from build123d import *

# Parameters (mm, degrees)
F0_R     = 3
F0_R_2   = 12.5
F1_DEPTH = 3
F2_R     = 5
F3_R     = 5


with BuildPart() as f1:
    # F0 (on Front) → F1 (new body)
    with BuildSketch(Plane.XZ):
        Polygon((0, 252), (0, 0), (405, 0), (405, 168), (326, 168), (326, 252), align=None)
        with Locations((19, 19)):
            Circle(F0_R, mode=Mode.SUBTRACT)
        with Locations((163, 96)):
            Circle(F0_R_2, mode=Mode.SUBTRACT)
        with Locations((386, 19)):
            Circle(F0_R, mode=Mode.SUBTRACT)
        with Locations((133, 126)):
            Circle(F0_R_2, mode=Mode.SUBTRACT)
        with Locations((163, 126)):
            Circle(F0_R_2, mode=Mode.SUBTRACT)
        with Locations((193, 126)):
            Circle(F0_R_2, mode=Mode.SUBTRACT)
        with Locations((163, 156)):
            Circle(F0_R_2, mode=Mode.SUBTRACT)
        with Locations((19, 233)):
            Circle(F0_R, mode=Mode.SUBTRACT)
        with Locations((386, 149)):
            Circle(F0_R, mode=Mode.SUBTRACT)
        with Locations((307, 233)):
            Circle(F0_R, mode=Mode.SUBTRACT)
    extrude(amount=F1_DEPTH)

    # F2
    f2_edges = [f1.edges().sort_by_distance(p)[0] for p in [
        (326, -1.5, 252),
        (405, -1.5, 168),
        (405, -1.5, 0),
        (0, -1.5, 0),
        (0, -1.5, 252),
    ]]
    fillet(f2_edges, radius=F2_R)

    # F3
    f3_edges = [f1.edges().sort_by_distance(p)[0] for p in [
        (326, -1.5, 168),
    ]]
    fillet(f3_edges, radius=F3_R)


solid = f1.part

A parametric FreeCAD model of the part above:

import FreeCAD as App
import Part
import Sketcher

V = App.Vector
Q = App.Units.Quantity


def edges_at(feature, points):
    """Names of the edges that pass closest to the given points."""
    edges = feature.Shape.Edges
    near = lambda p: min(range(len(edges)), key=lambda i: edges[i].distToShape(Part.Vertex(*p))[0])
    return sorted({f"Edge{near(p) + 1}" for p in points})


def add_polygon(sketch, points):
    """Adds a closed chain of lines whose ends are joined by coincident constraints."""
    first, n = sketch.GeometryCount, len(points)
    for a, b in zip(points, points[1:] + points[:1]):
        sketch.addGeometry(Part.LineSegment(App.Vector(*a, 0), App.Vector(*b, 0)), False)
    for i in range(n):
        sketch.addConstraint(Sketcher.Constraint("Coincident", first + i, 2, first + (i + 1) % n, 1))

doc = App.newDocument("Part")
body = doc.addObject("PartDesign::Body", "Body")

# Sketch on XZ plane
sketch1 = body.newObject("Sketcher::SketchObject", "Sketch")
sketch1.AttachmentSupport = (doc.getObject("XZ_Plane"), [""])
sketch1.MapMode = "FlatFace"
add_polygon(sketch1, [(0, 252), (0, 0), (405, 0), (405, 168), (326, 168), (326, 252)])  # lines 0-5
sketch1.addGeometry(Part.Circle(V(19, 19, 0), V(0, 0, 1), 3), False)  # 6
sketch1.addGeometry(Part.Circle(V(163, 96, 0), V(0, 0, 1), 12.5), False)  # 7
sketch1.addGeometry(Part.Circle(V(386, 19, 0), V(0, 0, 1), 3), False)  # 8
sketch1.addGeometry(Part.Circle(V(133, 126, 0), V(0, 0, 1), 12.5), False)  # 9
sketch1.addGeometry(Part.Circle(V(163, 126, 0), V(0, 0, 1), 12.5), False)  # 10
sketch1.addGeometry(Part.Circle(V(193, 126, 0), V(0, 0, 1), 12.5), False)  # 11
sketch1.addGeometry(Part.Circle(V(163, 156, 0), V(0, 0, 1), 12.5), False)  # 12
sketch1.addGeometry(Part.Circle(V(19, 233, 0), V(0, 0, 1), 3), False)  # 13
sketch1.addGeometry(Part.Circle(V(386, 149, 0), V(0, 0, 1), 3), False)  # 14
sketch1.addGeometry(Part.Circle(V(307, 233, 0), V(0, 0, 1), 3), False)  # 15
sketch1.addConstraint(Sketcher.Constraint("Vertical", 0))
sketch1.addConstraint(Sketcher.Constraint("Horizontal", 1))
sketch1.addConstraint(Sketcher.Constraint("Vertical", 2))
sketch1.addConstraint(Sketcher.Constraint("Horizontal", 3))
sketch1.addConstraint(Sketcher.Constraint("Vertical", 4))
sketch1.addConstraint(Sketcher.Constraint("Horizontal", 5))
sketch1.addConstraint(Sketcher.Constraint("Coincident", 0, 2, -1, 1))
sketch1.addConstraint(Sketcher.Constraint("Equal", 6, 8))
sketch1.addConstraint(Sketcher.Constraint("Equal", 7, 9))
sketch1.addConstraint(Sketcher.Constraint("Equal", 9, 10))
sketch1.addConstraint(Sketcher.Constraint("Equal", 10, 11))
sketch1.addConstraint(Sketcher.Constraint("Equal", 11, 12))
sketch1.addConstraint(Sketcher.Constraint("Equal", 8, 13))
sketch1.addConstraint(Sketcher.Constraint("Equal", 13, 14))
sketch1.addConstraint(Sketcher.Constraint("Equal", 14, 15))
sketch1.addConstraint(Sketcher.Constraint("Horizontal", 6, 3, 8, 3))
sketch1.addConstraint(Sketcher.Constraint("Horizontal", 9, 3, 10, 3))
sketch1.addConstraint(Sketcher.Constraint("Horizontal", 10, 3, 11, 3))
sketch1.addConstraint(Sketcher.Constraint("Horizontal", 13, 3, 15, 3))
sketch1.addConstraint(Sketcher.Constraint("Vertical", 7, 3, 10, 3))
sketch1.addConstraint(Sketcher.Constraint("Vertical", 10, 3, 12, 3))
sketch1.addConstraint(Sketcher.Constraint("Vertical", 6, 3, 13, 3))
sketch1.addConstraint(Sketcher.Constraint("Vertical", 8, 3, 14, 3))
sketch1.addConstraint(Sketcher.Constraint("Diameter", 6, Q("6 mm")))
sketch1.addConstraint(Sketcher.Constraint("Diameter", 7, Q("25 mm")))
sketch1.addConstraint(Sketcher.Constraint("DistanceX", 1, 1, 1, 2, Q("405 mm")))
sketch1.addConstraint(Sketcher.Constraint("DistanceX", 3, 2, 3, 1, Q("79 mm")))
sketch1.addConstraint(Sketcher.Constraint("DistanceY", 0, 2, 0, 1, Q("252 mm")))
sketch1.addConstraint(Sketcher.Constraint("DistanceY", 2, 1, 2, 2, Q("168 mm")))
sketch1.addConstraint(Sketcher.Constraint("DistanceX", -1, 1, 6, 3, Q("19 mm")))
sketch1.addConstraint(Sketcher.Constraint("DistanceY", -1, 1, 6, 3, Q("19 mm")))
sketch1.addConstraint(Sketcher.Constraint("DistanceX", -1, 1, 7, 3, Q("163 mm")))
sketch1.addConstraint(Sketcher.Constraint("DistanceY", -1, 1, 7, 3, Q("96 mm")))
sketch1.addConstraint(Sketcher.Constraint("DistanceX", -1, 1, 8, 3, Q("386 mm")))
sketch1.addConstraint(Sketcher.Constraint("DistanceX", -1, 1, 9, 3, Q("133 mm")))
sketch1.addConstraint(Sketcher.Constraint("DistanceY", -1, 1, 9, 3, Q("126 mm")))
sketch1.addConstraint(Sketcher.Constraint("DistanceX", -1, 1, 11, 3, Q("193 mm")))
sketch1.addConstraint(Sketcher.Constraint("DistanceY", -1, 1, 12, 3, Q("156 mm")))
sketch1.addConstraint(Sketcher.Constraint("DistanceY", -1, 1, 13, 3, Q("233 mm")))
sketch1.addConstraint(Sketcher.Constraint("DistanceY", -1, 1, 14, 3, Q("149 mm")))
sketch1.addConstraint(Sketcher.Constraint("DistanceX", -1, 1, 15, 3, Q("307 mm")))
pad1 = body.newObject("PartDesign::Pad", "Pad")
pad1.Profile = sketch1
pad1.Length = 3
doc.recompute()

fillet = body.newObject("PartDesign::Fillet", "Fillet")
fillet.Base = (pad1, edges_at(pad1, [
    (326, -1.5, 252),
    (405, -1.5, 168),
    (405, -1.5, 0),
    (0, -1.5, 0),
    (0, -1.5, 252),
]))
fillet.Radius = 5
doc.recompute()

fillet2 = body.newObject("PartDesign::Fillet", "Fillet001")
fillet2.Base = (fillet, edges_at(fillet, [(326, -1.5, 168)]))
fillet2.Radius = 5

doc.recompute()
